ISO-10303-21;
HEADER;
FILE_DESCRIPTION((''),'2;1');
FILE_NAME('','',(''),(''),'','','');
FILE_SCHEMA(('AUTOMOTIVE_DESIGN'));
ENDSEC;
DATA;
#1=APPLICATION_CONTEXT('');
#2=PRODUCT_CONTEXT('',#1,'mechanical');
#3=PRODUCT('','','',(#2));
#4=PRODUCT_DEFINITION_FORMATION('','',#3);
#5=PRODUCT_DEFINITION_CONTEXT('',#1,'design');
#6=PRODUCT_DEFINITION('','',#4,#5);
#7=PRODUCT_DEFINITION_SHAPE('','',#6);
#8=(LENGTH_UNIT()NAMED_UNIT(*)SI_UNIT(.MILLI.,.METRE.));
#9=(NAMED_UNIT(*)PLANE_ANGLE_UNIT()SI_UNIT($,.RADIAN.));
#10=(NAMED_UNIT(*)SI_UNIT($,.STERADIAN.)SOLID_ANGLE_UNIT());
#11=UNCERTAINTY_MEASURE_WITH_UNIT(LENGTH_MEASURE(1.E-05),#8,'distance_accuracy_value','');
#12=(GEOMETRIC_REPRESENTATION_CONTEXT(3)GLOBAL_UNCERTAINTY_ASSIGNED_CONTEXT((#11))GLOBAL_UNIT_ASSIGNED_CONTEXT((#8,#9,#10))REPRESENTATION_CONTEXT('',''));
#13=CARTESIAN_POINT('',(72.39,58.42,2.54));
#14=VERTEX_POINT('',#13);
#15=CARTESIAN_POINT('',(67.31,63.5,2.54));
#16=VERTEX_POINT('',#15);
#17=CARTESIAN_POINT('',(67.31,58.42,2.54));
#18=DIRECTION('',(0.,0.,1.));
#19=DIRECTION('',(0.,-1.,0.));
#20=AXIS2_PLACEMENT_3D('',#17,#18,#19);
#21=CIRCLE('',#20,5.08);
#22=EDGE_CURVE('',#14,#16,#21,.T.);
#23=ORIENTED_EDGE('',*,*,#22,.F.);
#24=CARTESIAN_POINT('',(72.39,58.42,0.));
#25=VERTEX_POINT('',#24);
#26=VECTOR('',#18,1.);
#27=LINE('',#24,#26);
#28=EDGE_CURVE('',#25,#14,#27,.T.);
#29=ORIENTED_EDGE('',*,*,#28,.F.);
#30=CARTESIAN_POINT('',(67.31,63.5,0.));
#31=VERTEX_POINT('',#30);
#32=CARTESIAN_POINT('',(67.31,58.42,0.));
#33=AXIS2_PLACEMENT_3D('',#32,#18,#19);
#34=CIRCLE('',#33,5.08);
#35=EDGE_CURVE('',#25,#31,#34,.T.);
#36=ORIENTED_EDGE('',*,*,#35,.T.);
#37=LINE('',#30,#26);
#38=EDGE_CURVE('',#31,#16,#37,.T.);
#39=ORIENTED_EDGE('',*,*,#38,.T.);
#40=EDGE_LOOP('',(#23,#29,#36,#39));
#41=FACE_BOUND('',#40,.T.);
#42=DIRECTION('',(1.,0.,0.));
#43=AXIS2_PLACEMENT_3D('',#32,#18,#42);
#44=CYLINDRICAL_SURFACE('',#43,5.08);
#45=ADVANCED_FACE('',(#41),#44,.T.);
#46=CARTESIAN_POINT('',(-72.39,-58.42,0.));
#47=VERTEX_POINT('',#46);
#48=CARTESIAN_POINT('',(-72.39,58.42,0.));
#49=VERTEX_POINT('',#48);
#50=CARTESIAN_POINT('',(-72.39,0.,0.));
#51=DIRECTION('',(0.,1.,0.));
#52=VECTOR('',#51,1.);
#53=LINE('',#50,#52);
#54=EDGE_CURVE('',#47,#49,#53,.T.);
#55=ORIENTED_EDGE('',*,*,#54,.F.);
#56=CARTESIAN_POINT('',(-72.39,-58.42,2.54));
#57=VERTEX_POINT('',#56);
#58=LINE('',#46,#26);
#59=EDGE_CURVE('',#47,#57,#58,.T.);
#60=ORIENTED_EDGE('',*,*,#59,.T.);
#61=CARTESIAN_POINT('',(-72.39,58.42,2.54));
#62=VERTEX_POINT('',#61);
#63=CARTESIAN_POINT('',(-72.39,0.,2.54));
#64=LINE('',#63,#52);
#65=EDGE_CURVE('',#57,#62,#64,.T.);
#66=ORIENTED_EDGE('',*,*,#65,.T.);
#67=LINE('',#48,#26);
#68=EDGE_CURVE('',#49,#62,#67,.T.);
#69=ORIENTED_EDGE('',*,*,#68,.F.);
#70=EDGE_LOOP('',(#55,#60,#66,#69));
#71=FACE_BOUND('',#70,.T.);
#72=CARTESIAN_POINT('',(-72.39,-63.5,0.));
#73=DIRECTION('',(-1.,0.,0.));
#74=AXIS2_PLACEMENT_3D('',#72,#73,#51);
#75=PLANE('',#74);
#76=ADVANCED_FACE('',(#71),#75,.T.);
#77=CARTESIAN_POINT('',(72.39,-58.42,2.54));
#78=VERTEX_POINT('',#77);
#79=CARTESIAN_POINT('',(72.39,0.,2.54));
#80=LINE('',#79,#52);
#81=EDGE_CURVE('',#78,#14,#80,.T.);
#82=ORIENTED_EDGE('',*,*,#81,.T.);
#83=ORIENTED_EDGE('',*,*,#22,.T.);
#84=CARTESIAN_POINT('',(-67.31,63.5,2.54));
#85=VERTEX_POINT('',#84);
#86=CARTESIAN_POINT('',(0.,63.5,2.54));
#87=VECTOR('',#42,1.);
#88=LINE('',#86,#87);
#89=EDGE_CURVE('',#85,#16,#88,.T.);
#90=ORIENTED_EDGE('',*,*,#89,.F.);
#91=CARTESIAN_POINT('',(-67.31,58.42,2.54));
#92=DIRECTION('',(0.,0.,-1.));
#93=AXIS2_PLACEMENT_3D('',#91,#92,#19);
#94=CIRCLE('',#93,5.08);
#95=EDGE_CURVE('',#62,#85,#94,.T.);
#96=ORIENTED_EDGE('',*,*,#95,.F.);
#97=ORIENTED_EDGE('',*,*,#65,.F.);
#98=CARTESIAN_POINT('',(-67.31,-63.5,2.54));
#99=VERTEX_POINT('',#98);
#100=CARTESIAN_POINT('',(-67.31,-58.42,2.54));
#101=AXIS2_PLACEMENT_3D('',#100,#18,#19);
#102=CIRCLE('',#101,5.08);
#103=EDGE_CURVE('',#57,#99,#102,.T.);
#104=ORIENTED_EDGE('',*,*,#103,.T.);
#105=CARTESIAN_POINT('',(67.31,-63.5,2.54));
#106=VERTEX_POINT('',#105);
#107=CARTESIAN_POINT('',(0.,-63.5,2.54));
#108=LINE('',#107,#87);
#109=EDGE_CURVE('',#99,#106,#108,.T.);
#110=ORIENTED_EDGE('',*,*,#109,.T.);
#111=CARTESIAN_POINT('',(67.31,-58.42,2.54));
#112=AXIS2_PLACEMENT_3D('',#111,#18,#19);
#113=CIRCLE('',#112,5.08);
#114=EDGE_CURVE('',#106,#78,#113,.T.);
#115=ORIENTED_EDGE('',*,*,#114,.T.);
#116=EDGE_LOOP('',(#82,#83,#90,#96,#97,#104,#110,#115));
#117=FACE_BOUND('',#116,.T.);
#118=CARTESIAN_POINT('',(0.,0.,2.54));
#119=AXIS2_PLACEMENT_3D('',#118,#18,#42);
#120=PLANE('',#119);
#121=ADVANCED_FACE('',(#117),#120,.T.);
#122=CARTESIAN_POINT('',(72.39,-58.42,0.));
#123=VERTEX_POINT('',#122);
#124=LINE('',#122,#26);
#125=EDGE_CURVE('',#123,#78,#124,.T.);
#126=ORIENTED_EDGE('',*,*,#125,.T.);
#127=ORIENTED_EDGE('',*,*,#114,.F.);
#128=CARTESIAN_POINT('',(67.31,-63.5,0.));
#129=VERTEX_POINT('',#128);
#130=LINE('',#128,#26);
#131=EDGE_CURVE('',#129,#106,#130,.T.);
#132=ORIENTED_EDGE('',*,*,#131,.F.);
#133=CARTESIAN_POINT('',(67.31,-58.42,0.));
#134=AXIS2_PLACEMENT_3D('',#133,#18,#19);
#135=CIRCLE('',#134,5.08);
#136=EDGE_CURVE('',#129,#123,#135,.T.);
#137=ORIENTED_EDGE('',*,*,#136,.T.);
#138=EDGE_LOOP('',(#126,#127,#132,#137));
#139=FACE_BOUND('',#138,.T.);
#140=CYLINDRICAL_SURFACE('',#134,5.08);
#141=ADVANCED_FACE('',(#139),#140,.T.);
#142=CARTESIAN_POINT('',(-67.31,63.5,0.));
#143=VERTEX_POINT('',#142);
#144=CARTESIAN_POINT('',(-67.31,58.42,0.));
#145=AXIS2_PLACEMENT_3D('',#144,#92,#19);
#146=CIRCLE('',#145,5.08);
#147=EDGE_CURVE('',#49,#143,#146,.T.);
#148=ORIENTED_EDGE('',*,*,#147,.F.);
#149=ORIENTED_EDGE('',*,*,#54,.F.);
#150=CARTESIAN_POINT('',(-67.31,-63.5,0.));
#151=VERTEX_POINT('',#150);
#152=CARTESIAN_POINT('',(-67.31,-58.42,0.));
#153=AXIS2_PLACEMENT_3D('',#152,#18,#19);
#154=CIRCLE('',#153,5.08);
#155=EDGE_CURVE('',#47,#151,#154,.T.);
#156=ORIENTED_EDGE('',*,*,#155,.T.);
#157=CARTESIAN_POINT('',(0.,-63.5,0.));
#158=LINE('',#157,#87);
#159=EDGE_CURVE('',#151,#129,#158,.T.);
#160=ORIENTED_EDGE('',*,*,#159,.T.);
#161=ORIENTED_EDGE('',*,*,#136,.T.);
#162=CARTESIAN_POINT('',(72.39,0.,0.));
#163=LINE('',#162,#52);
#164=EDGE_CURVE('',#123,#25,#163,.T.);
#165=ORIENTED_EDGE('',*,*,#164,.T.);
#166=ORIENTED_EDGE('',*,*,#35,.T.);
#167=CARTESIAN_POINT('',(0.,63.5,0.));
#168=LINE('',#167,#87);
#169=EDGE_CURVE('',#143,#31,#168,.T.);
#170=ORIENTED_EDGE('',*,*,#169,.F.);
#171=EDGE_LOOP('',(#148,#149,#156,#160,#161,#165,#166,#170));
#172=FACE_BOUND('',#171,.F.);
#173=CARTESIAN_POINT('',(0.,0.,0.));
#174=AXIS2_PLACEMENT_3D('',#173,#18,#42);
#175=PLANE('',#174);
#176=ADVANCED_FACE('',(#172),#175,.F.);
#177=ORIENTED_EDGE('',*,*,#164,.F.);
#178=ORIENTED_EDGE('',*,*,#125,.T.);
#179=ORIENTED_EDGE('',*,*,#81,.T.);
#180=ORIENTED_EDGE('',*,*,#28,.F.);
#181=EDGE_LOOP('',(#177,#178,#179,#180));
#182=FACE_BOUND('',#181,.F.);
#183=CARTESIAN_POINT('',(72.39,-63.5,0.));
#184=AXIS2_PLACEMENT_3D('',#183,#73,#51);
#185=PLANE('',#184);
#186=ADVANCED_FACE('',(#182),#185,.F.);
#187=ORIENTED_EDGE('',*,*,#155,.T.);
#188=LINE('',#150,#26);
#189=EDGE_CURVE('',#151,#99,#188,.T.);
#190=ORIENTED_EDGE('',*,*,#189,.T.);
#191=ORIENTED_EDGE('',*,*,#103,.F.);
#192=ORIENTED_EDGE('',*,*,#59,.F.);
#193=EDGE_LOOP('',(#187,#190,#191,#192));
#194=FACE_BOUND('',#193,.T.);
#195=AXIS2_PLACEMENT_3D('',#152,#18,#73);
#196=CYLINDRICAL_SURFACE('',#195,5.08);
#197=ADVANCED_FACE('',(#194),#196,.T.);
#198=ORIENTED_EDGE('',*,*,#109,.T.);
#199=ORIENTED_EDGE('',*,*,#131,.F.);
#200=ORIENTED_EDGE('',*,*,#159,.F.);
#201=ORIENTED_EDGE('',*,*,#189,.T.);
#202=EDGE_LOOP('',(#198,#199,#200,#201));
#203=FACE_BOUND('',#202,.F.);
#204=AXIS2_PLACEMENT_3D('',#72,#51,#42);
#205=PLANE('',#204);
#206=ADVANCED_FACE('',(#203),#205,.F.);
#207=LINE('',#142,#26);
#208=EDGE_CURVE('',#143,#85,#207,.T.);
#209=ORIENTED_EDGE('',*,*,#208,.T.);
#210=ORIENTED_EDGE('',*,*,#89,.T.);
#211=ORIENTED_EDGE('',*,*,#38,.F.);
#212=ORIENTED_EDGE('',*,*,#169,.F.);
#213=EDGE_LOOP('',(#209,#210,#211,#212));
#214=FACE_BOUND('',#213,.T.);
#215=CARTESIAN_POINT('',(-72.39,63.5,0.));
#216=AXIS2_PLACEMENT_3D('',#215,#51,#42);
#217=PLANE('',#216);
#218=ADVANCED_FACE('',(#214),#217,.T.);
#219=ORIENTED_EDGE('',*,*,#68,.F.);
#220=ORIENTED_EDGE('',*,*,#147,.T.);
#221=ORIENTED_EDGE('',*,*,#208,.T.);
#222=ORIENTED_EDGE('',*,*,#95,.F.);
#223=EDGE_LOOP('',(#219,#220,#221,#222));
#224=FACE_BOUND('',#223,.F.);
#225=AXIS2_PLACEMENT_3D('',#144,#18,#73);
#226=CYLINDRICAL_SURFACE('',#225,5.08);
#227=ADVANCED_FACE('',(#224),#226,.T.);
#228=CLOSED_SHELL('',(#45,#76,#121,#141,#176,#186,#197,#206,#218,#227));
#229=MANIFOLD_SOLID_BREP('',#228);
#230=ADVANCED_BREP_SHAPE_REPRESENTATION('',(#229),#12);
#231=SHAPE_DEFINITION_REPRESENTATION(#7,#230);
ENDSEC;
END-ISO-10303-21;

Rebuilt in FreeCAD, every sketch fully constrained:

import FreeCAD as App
import Part
import Sketcher
from FreeCAD import Vector
Q = App.Units.Quantity


def edges_at(feature, points):
    """Names of the edges that pass closest to the given points."""
    edges = feature.Shape.Edges
    near = lambda p: min(range(len(edges)), key=lambda i: edges[i].distToShape(Part.Vertex(*p))[0])
    return sorted({f"Edge{near(p) + 1}" for p in points})


def add_polygon(sketch, points):
    """Adds a closed chain of lines whose ends are joined by coincident constraints."""
    first, n = sketch.GeometryCount, len(points)
    for a, b in zip(points, points[1:] + points[:1]):
        sketch.addGeometry(Part.LineSegment(App.Vector(*a, 0), App.Vector(*b, 0)), False)
    for i in range(n):
        sketch.addConstraint(Sketcher.Constraint("Coincident", first + i, 2, first + (i + 1) % n, 1))

doc = App.newDocument("Part")
params = doc.addObject("Spreadsheet::Sheet", "Params")
for row, (alias, value) in enumerate([
    ("sketch1_width", "5.5 in"),
    ("sketch1_height", "4.8 in"),
    ("pad1_length", "0.1 in"),
    ("sketch2_height", "5 in"),
    ("sketch2_width", "5.7 in"),
    ("pad2_length", "0.1 in"),
    ("fillet_radius", "0.2 in"),
], start=1):
    params.set(f"A{row}", alias)
    params.set(f"B{row}", "=" + value)
    params.setAlias(f"B{row}", alias)

body = doc.addObject("PartDesign::Body", "Body")

sketch1 = body.newObject("Sketcher::SketchObject", "Sketch")
sketch1.AttachmentSupport = (doc.getObject("XY_Plane"), [""])
sketch1.MapMode = "FlatFace"
add_polygon(sketch1, [(-92, 85), (-92, -37), (48, -37), (48, 85)])
sketch1.addConstraint([
    Sketcher.Constraint("Vertical", 0),
    Sketcher.Constraint("Horizontal", 1),
    Sketcher.Constraint("Vertical", 2),
    Sketcher.Constraint("Horizontal", 3),
    Sketcher.Constraint("DistanceX", 1, 1, 1, 2, Q("5.5 in")),
    Sketcher.Constraint("DistanceY", 0, 2, 0, 1, Q("4.8 in")),
    Sketcher.Constraint("DistanceY", 0, 2, -1, 1, Q("37.104752 mm")),
    Sketcher.Constraint("DistanceX", 0, 2, -1, 1, Q("91.703065 mm")),
])
sketch1.setExpression("Constraints[8]", "Params.sketch1_width")
sketch1.setExpression("Constraints[9]", "Params.sketch1_height")
pad1 = body.newObject("PartDesign::Pad", "Pad")
pad1.Profile = sketch1
pad1.setExpression("Length", "Params.pad1_length")
body2 = doc.addObject("PartDesign::Body", "Body001")

sketch2 = body2.newObject("Sketcher::SketchObject", "Sketch001")
sketch2.AttachmentSupport = (doc.getObject("XY_Plane001"), [""])
sketch2.MapMode = "FlatFace"
add_polygon(sketch2, [(-72, 64), (-72, -64), (72, -64), (72, 64)])
sketch2.addConstraint([
    Sketcher.Constraint("Vertical", 0),
    Sketcher.Constraint("Horizontal", 1),
    Sketcher.Constraint("Vertical", 2),
    Sketcher.Constraint("Horizontal", 3),
    Sketcher.Constraint("Symmetric", 0, 2, 2, 2, -1, 1),
    Sketcher.Constraint("DistanceY", 0, 2, 0, 1, Q("5 in")),
    Sketcher.Constraint("DistanceX", 1, 1, 1, 2, Q("5.7 in")),
])
sketch2.setExpression("Constraints[9]", "Params.sketch2_height")
sketch2.setExpression("Constraints[10]", "Params.sketch2_width")
pad2 = body2.newObject("PartDesign::Pad", "Pad001")
pad2.Profile = sketch2
pad2.setExpression("Length", "Params.pad2_length")
doc.recompute()

fillet = body2.newObject("PartDesign::Fillet", "Fillet")
fillet.Base = (pad2, edges_at(pad2, [
    (-72.39, 63.5, 1.27),
    (72.39, 63.5, 1.27),
    (72.39, -63.5, 1.27),
    (-72.39, -63.5, 1.27),
]))
fillet.setExpression("Radius", "Params.fillet_radius")
body.Visibility = False

doc.recompute()
